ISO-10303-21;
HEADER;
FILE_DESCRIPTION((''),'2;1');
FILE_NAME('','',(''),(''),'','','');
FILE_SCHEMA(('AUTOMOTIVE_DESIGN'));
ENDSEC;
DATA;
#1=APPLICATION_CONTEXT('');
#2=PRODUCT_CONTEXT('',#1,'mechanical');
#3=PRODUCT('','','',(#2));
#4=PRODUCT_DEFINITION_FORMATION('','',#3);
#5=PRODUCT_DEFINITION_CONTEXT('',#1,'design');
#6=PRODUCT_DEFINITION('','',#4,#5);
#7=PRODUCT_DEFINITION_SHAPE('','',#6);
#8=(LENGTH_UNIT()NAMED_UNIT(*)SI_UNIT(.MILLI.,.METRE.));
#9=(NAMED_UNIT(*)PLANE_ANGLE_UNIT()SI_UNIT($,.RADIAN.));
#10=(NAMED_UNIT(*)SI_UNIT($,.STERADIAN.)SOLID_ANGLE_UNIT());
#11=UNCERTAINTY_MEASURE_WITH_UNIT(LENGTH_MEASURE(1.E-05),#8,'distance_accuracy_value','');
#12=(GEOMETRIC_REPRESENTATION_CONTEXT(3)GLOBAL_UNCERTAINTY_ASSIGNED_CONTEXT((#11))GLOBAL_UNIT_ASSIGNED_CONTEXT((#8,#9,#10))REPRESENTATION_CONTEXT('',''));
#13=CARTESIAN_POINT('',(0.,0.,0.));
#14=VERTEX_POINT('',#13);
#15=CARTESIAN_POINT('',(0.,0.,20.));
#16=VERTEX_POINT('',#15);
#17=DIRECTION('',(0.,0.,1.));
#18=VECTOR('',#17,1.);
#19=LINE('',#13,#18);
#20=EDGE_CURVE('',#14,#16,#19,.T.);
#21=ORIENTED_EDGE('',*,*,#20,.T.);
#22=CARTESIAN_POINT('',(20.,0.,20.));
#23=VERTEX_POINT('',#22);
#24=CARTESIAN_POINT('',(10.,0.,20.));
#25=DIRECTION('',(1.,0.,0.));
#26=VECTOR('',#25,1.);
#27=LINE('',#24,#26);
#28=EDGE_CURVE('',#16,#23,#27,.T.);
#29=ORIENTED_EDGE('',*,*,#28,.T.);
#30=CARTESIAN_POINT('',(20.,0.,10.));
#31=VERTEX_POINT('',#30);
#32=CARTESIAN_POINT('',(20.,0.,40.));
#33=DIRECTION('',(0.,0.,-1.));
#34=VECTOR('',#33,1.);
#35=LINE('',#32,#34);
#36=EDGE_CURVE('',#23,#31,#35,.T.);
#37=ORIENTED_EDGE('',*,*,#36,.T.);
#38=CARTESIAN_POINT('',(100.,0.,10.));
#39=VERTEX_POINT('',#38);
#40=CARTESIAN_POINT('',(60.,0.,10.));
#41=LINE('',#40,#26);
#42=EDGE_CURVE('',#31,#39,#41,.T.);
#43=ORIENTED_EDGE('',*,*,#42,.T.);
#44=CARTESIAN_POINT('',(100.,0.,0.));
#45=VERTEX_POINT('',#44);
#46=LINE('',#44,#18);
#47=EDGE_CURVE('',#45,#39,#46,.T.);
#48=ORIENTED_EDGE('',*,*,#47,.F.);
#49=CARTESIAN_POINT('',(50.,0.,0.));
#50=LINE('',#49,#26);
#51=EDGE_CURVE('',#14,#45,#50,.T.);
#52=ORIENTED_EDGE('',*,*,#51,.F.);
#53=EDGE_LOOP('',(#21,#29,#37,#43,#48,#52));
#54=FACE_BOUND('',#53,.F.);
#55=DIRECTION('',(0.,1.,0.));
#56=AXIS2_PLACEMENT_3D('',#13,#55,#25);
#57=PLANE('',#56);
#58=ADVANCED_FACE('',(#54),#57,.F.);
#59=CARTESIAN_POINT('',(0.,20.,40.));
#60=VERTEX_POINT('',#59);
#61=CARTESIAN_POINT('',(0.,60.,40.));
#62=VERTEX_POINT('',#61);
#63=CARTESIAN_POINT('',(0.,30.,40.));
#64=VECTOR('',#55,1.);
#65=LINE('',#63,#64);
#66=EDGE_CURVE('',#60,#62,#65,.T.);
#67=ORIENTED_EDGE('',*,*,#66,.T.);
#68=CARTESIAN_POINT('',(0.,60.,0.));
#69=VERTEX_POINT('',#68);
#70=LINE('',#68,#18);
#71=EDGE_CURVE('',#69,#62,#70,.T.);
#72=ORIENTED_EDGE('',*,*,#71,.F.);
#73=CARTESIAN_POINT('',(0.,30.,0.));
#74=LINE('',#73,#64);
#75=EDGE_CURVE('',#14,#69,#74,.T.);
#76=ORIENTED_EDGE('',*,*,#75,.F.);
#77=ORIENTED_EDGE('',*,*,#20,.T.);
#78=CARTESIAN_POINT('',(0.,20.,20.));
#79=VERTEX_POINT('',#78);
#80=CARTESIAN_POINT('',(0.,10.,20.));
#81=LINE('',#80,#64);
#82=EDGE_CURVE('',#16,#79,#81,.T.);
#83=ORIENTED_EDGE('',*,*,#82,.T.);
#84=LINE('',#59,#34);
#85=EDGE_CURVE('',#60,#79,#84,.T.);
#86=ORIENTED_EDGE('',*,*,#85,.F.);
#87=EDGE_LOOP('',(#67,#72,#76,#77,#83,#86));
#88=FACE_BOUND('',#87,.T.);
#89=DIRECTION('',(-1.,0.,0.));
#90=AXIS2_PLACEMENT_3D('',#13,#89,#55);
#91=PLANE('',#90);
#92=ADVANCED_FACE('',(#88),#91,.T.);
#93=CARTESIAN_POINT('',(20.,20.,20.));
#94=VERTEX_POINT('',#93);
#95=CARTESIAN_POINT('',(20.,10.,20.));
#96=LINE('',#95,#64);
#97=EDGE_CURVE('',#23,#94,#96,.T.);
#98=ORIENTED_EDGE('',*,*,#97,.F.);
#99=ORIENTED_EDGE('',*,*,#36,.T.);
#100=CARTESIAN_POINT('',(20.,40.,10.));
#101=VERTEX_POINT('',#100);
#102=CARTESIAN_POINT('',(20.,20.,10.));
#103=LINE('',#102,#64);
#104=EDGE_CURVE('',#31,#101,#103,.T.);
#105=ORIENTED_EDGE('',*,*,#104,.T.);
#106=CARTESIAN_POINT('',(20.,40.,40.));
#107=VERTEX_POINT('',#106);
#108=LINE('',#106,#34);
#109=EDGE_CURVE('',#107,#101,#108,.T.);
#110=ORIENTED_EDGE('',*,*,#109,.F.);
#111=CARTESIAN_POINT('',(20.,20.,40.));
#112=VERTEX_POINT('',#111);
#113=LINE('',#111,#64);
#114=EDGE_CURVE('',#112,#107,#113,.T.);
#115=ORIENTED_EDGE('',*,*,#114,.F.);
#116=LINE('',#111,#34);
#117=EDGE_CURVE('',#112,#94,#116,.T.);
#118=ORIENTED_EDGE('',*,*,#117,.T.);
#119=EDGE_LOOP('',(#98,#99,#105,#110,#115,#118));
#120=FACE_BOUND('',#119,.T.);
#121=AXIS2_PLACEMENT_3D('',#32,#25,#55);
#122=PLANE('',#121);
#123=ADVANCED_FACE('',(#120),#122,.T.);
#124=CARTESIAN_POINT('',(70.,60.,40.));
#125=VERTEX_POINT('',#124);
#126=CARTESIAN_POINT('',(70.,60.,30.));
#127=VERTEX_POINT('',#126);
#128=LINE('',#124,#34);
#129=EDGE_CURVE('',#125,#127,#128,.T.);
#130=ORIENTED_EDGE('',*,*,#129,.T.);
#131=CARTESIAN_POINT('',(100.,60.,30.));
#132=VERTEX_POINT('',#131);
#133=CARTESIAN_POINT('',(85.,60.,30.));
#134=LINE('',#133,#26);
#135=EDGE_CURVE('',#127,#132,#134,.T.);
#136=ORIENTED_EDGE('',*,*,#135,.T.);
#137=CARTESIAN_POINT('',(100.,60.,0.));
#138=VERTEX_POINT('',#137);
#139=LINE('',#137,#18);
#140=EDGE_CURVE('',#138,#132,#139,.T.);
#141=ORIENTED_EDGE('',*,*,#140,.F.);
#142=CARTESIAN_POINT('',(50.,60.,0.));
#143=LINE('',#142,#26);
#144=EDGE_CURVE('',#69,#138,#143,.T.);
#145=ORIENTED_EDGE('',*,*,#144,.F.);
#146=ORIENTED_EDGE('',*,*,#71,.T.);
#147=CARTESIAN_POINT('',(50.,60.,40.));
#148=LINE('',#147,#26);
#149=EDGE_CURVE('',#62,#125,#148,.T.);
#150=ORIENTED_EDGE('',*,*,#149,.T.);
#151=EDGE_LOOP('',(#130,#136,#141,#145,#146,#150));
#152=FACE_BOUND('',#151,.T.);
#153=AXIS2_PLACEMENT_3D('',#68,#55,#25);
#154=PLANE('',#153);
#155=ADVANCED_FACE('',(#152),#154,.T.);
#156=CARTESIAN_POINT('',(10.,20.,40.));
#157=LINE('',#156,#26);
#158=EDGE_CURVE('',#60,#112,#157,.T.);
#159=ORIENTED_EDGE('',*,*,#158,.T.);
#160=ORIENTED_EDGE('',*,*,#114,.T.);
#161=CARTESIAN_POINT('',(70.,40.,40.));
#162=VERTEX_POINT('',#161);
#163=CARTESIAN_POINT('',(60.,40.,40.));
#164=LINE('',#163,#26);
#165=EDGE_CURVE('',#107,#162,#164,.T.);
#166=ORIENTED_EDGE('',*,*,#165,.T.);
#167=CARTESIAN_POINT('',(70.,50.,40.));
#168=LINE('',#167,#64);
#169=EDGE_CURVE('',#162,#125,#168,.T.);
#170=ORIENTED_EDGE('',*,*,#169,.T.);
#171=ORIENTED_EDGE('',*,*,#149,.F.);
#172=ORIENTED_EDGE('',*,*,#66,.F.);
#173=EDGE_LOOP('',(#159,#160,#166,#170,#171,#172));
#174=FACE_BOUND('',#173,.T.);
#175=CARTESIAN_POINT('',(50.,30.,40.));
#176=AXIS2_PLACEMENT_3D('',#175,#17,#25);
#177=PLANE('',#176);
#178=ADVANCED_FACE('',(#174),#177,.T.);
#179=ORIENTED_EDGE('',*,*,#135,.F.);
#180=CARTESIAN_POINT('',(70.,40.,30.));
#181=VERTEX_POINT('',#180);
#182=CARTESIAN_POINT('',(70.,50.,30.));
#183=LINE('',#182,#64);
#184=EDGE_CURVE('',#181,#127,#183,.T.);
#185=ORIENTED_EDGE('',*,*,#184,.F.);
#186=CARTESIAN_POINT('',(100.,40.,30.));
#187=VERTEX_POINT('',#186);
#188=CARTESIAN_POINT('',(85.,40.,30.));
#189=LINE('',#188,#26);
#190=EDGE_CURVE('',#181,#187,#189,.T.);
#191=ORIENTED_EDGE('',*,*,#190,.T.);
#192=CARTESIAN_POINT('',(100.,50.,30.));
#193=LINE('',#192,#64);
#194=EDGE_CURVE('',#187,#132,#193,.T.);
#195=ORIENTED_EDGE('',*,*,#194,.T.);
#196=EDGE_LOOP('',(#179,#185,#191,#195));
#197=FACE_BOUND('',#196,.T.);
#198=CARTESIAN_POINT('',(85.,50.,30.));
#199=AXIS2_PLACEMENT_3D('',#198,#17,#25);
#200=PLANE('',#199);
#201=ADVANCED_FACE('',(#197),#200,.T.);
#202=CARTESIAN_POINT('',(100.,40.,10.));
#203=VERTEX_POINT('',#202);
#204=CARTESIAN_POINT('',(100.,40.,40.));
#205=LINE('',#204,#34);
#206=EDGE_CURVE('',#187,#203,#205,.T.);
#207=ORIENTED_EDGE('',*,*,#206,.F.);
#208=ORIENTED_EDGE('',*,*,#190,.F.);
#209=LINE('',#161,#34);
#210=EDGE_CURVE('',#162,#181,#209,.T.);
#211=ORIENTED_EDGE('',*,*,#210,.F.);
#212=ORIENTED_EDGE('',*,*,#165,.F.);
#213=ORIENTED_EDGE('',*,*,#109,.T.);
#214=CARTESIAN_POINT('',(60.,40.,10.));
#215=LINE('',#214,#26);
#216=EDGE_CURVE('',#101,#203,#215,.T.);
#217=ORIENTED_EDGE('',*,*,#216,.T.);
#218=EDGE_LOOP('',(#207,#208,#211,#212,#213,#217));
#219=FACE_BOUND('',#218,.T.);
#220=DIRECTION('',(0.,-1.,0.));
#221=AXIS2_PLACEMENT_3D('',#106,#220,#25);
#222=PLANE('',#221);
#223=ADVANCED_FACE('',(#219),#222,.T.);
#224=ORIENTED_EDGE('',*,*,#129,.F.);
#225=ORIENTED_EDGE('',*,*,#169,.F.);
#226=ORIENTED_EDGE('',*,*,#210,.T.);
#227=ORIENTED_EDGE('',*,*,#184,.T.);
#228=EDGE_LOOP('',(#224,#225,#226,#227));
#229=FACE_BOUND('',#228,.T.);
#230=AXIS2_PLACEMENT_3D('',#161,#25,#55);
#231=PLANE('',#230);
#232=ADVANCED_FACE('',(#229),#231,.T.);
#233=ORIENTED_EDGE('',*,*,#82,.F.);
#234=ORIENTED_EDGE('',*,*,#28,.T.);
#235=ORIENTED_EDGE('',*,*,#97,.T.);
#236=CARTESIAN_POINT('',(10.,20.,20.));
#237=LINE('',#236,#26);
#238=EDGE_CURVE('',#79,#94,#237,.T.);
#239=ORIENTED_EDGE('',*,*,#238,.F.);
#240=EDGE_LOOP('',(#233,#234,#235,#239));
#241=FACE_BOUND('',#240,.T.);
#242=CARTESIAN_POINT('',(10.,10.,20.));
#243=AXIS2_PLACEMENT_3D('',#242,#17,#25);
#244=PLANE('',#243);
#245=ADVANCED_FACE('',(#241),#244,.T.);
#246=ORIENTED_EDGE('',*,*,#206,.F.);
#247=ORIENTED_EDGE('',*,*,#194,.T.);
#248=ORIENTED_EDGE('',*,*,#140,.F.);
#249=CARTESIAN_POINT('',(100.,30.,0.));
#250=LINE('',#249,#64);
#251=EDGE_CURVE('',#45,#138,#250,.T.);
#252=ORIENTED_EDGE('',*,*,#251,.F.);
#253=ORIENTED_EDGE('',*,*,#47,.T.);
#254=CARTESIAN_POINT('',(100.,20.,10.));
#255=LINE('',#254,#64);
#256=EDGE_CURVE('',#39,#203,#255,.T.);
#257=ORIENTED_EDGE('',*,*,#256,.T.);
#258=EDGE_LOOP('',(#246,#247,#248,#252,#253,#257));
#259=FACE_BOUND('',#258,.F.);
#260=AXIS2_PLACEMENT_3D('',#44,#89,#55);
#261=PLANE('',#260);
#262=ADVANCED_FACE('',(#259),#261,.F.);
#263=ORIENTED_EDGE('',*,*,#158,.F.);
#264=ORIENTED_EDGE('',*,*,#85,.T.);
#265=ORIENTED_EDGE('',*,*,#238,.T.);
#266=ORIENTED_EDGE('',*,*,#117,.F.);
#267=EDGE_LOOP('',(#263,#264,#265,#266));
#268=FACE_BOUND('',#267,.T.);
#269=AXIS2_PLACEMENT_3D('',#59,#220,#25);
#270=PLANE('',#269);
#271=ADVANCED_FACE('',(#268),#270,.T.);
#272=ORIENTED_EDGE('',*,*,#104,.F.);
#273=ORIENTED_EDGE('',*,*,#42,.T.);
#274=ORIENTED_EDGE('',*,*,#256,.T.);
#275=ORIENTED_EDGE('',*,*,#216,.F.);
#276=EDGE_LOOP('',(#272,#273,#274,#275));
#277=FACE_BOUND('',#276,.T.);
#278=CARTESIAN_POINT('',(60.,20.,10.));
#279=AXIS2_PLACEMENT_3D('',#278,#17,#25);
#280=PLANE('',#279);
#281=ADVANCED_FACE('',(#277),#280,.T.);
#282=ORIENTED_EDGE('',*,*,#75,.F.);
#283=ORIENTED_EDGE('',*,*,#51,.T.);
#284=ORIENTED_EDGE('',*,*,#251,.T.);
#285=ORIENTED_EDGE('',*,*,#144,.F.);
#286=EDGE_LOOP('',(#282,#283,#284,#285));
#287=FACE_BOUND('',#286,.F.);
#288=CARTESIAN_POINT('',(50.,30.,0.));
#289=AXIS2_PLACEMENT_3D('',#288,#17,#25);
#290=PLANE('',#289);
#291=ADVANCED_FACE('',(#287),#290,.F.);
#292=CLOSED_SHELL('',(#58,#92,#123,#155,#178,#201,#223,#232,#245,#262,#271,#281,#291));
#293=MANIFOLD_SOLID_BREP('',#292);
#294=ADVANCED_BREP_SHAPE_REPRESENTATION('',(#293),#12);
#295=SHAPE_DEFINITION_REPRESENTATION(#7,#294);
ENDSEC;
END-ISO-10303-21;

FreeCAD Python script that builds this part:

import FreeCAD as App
import Part
import Sketcher
from FreeCAD import Vector


def add_polygon(sketch, points):
    """Adds a closed chain of lines whose ends are joined by coincident constraints."""
    first, n = sketch.GeometryCount, len(points)
    for a, b in zip(points, points[1:] + points[:1]):
        sketch.addGeometry(Part.LineSegment(App.Vector(*a, 0), App.Vector(*b, 0)), False)
    for i in range(n):
        sketch.addConstraint(Sketcher.Constraint("Coincident", first + i, 2, first + (i + 1) % n, 1))

doc = App.newDocument("Part")
body = doc.addObject("PartDesign::Body", "Body")

sketch1 = body.newObject("Sketcher::SketchObject", "Sketch")
sketch1.AttachmentSupport = (doc.getObject("XY_Plane"), [""])
sketch1.MapMode = "FlatFace"
add_polygon(sketch1, [(0, 60), (0, 0), (100, 0), (100, 60)])
sketch1.addConstraint([
    Sketcher.Constraint("Vertical", 0),
    Sketcher.Constraint("Horizontal", 1),
    Sketcher.Constraint("Vertical", 2),
    Sketcher.Constraint("Horizontal", 3),
    Sketcher.Constraint("Coincident", 0, 2, -1, 1),
    Sketcher.Constraint("DistanceX", 1, 1, 1, 2, 100.0),
    Sketcher.Constraint("DistanceY", 0, 2, 0, 1, 60.0),
])
pad1 = body.newObject("PartDesign::Pad", "Pad")
pad1.Profile = sketch1
pad1.Length = 40

sketch2 = body.newObject("Sketcher::SketchObject", "Sketch001")
sketch2.AttachmentSupport = (doc.getObject("XY_Plane"), [""])
sketch2.MapMode = "FlatFace"
sketch2.AttachmentOffset = App.Placement(Vector(0, 0, 40), App.Rotation())
add_polygon(sketch2, [(20, 40), (20, 0), (100, 0), (100, 40)])
sketch2.addConstraint([
    Sketcher.Constraint("Vertical", 0),
    Sketcher.Constraint("Horizontal", 1),
    Sketcher.Constraint("Vertical", 2),
    Sketcher.Constraint("Horizontal", 3),
    Sketcher.Constraint("PointOnObject", 0, 2, -1),
    Sketcher.Constraint("DistanceX", 1, 1, 1, 2, 80.0),
    Sketcher.Constraint("DistanceY", 0, 2, 0, 1, 40.0),
    Sketcher.Constraint("DistanceX", -1, 1, 0, 2, 20.0),
])
pocket1 = body.newObject("PartDesign::Pocket", "Pocket")
pocket1.Profile = sketch2
pocket1.Length = 30

sketch3 = body.newObject("Sketcher::SketchObject", "Sketch002")
sketch3.AttachmentSupport = (doc.getObject("XY_Plane"), [""])
sketch3.MapMode = "FlatFace"
sketch3.AttachmentOffset = App.Placement(Vector(0, 0, 40), App.Rotation())
add_polygon(sketch3, [(70, 60), (70, 40), (100, 40), (100, 60)])
sketch3.addConstraint([
    Sketcher.Constraint("Vertical", 0),
    Sketcher.Constraint("Horizontal", 1),
    Sketcher.Constraint("Vertical", 2),
    Sketcher.Constraint("Horizontal", 3),
    Sketcher.Constraint("DistanceX", 1, 1, 1, 2, 30.0),
    Sketcher.Constraint("DistanceY", 0, 2, 0, 1, 20.0),
    Sketcher.Constraint("DistanceX", -1, 1, 0, 2, 70.0),
    Sketcher.Constraint("DistanceY", -1, 1, 0, 2, 40.0),
])
pocket2 = body.newObject("PartDesign::Pocket", "Pocket001")
pocket2.Profile = sketch3
pocket2.Length = 10

sketch4 = body.newObject("Sketcher::SketchObject", "Sketch003")
sketch4.AttachmentSupport = (doc.getObject("XY_Plane"), [""])
sketch4.MapMode = "FlatFace"
sketch4.AttachmentOffset = App.Placement(Vector(0, 0, 40), App.Rotation())
add_polygon(sketch4, [(0, 20), (0, 0), (20, 0), (20, 20)])
sketch4.addConstraint([
    Sketcher.Constraint("Vertical", 0),
    Sketcher.Constraint("Horizontal", 1),
    Sketcher.Constraint("Vertical", 2),
    Sketcher.Constraint("Horizontal", 3),
    Sketcher.Constraint("Coincident", 0, 2, -1, 1),
    Sketcher.Constraint("Equal", 3, 0),
    Sketcher.Constraint("DistanceX", 1, 1, 1, 2, 20.0),
])
pocket3 = body.newObject("PartDesign::Pocket", "Pocket002")
pocket3.Profile = sketch4
pocket3.Length = 20

doc.recompute()
